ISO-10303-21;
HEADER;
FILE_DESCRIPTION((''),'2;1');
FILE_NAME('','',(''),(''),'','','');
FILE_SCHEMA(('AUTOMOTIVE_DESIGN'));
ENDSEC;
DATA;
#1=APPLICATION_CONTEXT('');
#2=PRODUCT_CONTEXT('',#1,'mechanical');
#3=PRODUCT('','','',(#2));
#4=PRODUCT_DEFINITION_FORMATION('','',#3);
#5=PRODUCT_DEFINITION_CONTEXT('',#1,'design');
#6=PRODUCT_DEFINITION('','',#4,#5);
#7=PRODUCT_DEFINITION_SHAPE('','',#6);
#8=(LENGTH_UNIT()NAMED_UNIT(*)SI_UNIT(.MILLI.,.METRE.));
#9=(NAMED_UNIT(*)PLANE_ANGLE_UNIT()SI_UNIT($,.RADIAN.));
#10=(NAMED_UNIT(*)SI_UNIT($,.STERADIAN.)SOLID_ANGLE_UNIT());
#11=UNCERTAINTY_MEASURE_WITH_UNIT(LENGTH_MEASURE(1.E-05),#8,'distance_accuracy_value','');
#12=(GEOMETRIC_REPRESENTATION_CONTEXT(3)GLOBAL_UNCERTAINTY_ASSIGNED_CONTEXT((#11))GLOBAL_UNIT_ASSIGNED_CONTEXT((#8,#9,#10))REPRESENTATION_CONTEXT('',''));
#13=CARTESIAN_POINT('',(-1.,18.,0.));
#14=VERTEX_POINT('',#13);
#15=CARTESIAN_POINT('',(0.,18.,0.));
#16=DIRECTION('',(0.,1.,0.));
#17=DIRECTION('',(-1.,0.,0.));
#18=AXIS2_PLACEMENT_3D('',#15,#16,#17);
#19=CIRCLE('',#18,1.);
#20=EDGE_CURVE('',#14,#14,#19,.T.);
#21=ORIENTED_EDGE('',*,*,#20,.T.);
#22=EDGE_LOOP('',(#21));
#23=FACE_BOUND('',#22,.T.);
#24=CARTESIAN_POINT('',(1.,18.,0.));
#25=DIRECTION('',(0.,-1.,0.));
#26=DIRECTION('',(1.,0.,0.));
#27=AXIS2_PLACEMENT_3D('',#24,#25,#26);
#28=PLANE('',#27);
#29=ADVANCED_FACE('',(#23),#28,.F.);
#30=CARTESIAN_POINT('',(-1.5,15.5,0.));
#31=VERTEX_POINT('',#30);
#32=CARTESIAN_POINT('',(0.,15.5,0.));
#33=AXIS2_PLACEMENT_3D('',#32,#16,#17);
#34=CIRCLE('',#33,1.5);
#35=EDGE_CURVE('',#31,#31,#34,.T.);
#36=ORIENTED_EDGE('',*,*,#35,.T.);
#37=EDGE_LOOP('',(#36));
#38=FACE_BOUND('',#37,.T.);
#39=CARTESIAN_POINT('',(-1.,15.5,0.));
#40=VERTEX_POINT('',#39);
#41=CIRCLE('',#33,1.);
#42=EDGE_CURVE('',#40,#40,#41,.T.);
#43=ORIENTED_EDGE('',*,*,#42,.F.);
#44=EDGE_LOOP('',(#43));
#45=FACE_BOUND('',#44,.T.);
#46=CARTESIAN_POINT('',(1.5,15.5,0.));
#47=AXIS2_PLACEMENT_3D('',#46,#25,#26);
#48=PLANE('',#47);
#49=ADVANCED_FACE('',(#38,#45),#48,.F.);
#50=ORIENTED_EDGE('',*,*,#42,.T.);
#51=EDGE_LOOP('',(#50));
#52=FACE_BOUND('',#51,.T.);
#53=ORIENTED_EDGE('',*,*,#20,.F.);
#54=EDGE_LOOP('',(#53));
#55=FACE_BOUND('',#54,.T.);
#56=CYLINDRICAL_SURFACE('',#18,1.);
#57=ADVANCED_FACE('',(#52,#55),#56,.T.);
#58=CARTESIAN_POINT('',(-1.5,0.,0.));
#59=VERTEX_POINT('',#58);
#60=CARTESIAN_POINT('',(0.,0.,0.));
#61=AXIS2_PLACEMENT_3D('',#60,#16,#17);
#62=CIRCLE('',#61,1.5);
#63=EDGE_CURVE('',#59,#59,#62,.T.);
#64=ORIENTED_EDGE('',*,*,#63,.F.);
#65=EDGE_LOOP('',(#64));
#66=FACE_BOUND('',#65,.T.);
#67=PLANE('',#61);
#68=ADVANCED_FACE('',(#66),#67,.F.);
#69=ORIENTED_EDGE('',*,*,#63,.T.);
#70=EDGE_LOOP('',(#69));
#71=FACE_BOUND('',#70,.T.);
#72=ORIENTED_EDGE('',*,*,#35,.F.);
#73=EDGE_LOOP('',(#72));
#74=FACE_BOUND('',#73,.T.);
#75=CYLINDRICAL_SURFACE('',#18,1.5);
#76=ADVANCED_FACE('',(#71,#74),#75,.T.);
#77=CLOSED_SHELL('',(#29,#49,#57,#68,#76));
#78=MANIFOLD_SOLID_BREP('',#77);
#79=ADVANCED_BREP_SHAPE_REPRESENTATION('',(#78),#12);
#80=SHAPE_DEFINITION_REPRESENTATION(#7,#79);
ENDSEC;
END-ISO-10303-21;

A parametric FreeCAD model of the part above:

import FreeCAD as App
import Part
import Sketcher
from FreeCAD import Vector
Q = App.Units.Quantity

doc = App.newDocument("Part")
params = doc.addObject("Spreadsheet::Sheet", "Params")
for row, (alias, value) in enumerate([
    ("sketch1_width", "1 mm"),
    ("sketch1_height", "18 mm"),
    ("sketch1_width2", "1.5 mm"),
    ("sketch1_height2", "15.5 mm"),
    ("revolution_angle", "360 deg"),
], start=1):
    params.set(f"A{row}", alias)
    params.set(f"B{row}", "=" + value)
    params.setAlias(f"B{row}", alias)

body = doc.addObject("PartDesign::Body", "Body")

# Sketch on XY plane
sketch1 = doc.addObject("Sketcher::SketchObject", "Sketch")
body.addObject(sketch1)
sketch1.AttachmentSupport = (doc.XY_Plane, [""])
sketch1.MapMode = "FlatFace"
sketch1.addGeometry([
    Part.LineSegment(Vector(0, 0, 0), Vector(1.5, 0, 0)),  # 0
    Part.LineSegment(Vector(1.5, 0, 0), Vector(1.5, 15.5, 0)),  # 1
    Part.LineSegment(Vector(1.5, 15.5, 0), Vector(1, 15.5, 0)),  # 2
    Part.LineSegment(Vector(1, 15.5, 0), Vector(1, 18, 0)),  # 3
    Part.LineSegment(Vector(1, 18, 0), Vector(0, 18, 0)),  # 4
    Part.LineSegment(Vector(0, 18, 0), Vector(0, 0, 0)),  # 5
], False)
sketch1.addConstraint([
    Sketcher.Constraint("Coincident", 0, 2, 1, 1),
    Sketcher.Constraint("Coincident", 1, 2, 2, 1),
    Sketcher.Constraint("Coincident", 2, 2, 3, 1),
    Sketcher.Constraint("Coincident", 3, 2, 4, 1),
    Sketcher.Constraint("Coincident", 4, 2, 5, 1),
    Sketcher.Constraint("Coincident", 5, 2, 0, 1),
    Sketcher.Constraint("Horizontal", 0),
    Sketcher.Constraint("Vertical", 1),
    Sketcher.Constraint("Horizontal", 2),
    Sketcher.Constraint("Vertical", 3),
    Sketcher.Constraint("Horizontal", 4),
    Sketcher.Constraint("Vertical", 5),
    Sketcher.Constraint("Coincident", 5, 2, -1, 1),
    Sketcher.Constraint("DistanceX", 4, 2, 4, 1, Q("1 mm")),
    Sketcher.Constraint("DistanceY", 5, 2, 5, 1, Q("18 mm")),
    Sketcher.Constraint("DistanceX", 0, 1, 0, 2, Q("1.5 mm")),
    Sketcher.Constraint("DistanceY", 1, 1, 1, 2, Q("15.5 mm")),
])
sketch1.setExpression("Constraints[13]", "Params.sketch1_width")
sketch1.setExpression("Constraints[14]", "Params.sketch1_height")
sketch1.setExpression("Constraints[15]", "Params.sketch1_width2")
sketch1.setExpression("Constraints[16]", "Params.sketch1_height2")
revolution = doc.addObject("PartDesign::Revolution", "Revolution")
body.addObject(revolution)
revolution.Profile = sketch1
revolution.ReferenceAxis = (sketch1, ["V_Axis"])
revolution.setExpression("Angle", "Params.revolution_angle")

doc.recompute()
